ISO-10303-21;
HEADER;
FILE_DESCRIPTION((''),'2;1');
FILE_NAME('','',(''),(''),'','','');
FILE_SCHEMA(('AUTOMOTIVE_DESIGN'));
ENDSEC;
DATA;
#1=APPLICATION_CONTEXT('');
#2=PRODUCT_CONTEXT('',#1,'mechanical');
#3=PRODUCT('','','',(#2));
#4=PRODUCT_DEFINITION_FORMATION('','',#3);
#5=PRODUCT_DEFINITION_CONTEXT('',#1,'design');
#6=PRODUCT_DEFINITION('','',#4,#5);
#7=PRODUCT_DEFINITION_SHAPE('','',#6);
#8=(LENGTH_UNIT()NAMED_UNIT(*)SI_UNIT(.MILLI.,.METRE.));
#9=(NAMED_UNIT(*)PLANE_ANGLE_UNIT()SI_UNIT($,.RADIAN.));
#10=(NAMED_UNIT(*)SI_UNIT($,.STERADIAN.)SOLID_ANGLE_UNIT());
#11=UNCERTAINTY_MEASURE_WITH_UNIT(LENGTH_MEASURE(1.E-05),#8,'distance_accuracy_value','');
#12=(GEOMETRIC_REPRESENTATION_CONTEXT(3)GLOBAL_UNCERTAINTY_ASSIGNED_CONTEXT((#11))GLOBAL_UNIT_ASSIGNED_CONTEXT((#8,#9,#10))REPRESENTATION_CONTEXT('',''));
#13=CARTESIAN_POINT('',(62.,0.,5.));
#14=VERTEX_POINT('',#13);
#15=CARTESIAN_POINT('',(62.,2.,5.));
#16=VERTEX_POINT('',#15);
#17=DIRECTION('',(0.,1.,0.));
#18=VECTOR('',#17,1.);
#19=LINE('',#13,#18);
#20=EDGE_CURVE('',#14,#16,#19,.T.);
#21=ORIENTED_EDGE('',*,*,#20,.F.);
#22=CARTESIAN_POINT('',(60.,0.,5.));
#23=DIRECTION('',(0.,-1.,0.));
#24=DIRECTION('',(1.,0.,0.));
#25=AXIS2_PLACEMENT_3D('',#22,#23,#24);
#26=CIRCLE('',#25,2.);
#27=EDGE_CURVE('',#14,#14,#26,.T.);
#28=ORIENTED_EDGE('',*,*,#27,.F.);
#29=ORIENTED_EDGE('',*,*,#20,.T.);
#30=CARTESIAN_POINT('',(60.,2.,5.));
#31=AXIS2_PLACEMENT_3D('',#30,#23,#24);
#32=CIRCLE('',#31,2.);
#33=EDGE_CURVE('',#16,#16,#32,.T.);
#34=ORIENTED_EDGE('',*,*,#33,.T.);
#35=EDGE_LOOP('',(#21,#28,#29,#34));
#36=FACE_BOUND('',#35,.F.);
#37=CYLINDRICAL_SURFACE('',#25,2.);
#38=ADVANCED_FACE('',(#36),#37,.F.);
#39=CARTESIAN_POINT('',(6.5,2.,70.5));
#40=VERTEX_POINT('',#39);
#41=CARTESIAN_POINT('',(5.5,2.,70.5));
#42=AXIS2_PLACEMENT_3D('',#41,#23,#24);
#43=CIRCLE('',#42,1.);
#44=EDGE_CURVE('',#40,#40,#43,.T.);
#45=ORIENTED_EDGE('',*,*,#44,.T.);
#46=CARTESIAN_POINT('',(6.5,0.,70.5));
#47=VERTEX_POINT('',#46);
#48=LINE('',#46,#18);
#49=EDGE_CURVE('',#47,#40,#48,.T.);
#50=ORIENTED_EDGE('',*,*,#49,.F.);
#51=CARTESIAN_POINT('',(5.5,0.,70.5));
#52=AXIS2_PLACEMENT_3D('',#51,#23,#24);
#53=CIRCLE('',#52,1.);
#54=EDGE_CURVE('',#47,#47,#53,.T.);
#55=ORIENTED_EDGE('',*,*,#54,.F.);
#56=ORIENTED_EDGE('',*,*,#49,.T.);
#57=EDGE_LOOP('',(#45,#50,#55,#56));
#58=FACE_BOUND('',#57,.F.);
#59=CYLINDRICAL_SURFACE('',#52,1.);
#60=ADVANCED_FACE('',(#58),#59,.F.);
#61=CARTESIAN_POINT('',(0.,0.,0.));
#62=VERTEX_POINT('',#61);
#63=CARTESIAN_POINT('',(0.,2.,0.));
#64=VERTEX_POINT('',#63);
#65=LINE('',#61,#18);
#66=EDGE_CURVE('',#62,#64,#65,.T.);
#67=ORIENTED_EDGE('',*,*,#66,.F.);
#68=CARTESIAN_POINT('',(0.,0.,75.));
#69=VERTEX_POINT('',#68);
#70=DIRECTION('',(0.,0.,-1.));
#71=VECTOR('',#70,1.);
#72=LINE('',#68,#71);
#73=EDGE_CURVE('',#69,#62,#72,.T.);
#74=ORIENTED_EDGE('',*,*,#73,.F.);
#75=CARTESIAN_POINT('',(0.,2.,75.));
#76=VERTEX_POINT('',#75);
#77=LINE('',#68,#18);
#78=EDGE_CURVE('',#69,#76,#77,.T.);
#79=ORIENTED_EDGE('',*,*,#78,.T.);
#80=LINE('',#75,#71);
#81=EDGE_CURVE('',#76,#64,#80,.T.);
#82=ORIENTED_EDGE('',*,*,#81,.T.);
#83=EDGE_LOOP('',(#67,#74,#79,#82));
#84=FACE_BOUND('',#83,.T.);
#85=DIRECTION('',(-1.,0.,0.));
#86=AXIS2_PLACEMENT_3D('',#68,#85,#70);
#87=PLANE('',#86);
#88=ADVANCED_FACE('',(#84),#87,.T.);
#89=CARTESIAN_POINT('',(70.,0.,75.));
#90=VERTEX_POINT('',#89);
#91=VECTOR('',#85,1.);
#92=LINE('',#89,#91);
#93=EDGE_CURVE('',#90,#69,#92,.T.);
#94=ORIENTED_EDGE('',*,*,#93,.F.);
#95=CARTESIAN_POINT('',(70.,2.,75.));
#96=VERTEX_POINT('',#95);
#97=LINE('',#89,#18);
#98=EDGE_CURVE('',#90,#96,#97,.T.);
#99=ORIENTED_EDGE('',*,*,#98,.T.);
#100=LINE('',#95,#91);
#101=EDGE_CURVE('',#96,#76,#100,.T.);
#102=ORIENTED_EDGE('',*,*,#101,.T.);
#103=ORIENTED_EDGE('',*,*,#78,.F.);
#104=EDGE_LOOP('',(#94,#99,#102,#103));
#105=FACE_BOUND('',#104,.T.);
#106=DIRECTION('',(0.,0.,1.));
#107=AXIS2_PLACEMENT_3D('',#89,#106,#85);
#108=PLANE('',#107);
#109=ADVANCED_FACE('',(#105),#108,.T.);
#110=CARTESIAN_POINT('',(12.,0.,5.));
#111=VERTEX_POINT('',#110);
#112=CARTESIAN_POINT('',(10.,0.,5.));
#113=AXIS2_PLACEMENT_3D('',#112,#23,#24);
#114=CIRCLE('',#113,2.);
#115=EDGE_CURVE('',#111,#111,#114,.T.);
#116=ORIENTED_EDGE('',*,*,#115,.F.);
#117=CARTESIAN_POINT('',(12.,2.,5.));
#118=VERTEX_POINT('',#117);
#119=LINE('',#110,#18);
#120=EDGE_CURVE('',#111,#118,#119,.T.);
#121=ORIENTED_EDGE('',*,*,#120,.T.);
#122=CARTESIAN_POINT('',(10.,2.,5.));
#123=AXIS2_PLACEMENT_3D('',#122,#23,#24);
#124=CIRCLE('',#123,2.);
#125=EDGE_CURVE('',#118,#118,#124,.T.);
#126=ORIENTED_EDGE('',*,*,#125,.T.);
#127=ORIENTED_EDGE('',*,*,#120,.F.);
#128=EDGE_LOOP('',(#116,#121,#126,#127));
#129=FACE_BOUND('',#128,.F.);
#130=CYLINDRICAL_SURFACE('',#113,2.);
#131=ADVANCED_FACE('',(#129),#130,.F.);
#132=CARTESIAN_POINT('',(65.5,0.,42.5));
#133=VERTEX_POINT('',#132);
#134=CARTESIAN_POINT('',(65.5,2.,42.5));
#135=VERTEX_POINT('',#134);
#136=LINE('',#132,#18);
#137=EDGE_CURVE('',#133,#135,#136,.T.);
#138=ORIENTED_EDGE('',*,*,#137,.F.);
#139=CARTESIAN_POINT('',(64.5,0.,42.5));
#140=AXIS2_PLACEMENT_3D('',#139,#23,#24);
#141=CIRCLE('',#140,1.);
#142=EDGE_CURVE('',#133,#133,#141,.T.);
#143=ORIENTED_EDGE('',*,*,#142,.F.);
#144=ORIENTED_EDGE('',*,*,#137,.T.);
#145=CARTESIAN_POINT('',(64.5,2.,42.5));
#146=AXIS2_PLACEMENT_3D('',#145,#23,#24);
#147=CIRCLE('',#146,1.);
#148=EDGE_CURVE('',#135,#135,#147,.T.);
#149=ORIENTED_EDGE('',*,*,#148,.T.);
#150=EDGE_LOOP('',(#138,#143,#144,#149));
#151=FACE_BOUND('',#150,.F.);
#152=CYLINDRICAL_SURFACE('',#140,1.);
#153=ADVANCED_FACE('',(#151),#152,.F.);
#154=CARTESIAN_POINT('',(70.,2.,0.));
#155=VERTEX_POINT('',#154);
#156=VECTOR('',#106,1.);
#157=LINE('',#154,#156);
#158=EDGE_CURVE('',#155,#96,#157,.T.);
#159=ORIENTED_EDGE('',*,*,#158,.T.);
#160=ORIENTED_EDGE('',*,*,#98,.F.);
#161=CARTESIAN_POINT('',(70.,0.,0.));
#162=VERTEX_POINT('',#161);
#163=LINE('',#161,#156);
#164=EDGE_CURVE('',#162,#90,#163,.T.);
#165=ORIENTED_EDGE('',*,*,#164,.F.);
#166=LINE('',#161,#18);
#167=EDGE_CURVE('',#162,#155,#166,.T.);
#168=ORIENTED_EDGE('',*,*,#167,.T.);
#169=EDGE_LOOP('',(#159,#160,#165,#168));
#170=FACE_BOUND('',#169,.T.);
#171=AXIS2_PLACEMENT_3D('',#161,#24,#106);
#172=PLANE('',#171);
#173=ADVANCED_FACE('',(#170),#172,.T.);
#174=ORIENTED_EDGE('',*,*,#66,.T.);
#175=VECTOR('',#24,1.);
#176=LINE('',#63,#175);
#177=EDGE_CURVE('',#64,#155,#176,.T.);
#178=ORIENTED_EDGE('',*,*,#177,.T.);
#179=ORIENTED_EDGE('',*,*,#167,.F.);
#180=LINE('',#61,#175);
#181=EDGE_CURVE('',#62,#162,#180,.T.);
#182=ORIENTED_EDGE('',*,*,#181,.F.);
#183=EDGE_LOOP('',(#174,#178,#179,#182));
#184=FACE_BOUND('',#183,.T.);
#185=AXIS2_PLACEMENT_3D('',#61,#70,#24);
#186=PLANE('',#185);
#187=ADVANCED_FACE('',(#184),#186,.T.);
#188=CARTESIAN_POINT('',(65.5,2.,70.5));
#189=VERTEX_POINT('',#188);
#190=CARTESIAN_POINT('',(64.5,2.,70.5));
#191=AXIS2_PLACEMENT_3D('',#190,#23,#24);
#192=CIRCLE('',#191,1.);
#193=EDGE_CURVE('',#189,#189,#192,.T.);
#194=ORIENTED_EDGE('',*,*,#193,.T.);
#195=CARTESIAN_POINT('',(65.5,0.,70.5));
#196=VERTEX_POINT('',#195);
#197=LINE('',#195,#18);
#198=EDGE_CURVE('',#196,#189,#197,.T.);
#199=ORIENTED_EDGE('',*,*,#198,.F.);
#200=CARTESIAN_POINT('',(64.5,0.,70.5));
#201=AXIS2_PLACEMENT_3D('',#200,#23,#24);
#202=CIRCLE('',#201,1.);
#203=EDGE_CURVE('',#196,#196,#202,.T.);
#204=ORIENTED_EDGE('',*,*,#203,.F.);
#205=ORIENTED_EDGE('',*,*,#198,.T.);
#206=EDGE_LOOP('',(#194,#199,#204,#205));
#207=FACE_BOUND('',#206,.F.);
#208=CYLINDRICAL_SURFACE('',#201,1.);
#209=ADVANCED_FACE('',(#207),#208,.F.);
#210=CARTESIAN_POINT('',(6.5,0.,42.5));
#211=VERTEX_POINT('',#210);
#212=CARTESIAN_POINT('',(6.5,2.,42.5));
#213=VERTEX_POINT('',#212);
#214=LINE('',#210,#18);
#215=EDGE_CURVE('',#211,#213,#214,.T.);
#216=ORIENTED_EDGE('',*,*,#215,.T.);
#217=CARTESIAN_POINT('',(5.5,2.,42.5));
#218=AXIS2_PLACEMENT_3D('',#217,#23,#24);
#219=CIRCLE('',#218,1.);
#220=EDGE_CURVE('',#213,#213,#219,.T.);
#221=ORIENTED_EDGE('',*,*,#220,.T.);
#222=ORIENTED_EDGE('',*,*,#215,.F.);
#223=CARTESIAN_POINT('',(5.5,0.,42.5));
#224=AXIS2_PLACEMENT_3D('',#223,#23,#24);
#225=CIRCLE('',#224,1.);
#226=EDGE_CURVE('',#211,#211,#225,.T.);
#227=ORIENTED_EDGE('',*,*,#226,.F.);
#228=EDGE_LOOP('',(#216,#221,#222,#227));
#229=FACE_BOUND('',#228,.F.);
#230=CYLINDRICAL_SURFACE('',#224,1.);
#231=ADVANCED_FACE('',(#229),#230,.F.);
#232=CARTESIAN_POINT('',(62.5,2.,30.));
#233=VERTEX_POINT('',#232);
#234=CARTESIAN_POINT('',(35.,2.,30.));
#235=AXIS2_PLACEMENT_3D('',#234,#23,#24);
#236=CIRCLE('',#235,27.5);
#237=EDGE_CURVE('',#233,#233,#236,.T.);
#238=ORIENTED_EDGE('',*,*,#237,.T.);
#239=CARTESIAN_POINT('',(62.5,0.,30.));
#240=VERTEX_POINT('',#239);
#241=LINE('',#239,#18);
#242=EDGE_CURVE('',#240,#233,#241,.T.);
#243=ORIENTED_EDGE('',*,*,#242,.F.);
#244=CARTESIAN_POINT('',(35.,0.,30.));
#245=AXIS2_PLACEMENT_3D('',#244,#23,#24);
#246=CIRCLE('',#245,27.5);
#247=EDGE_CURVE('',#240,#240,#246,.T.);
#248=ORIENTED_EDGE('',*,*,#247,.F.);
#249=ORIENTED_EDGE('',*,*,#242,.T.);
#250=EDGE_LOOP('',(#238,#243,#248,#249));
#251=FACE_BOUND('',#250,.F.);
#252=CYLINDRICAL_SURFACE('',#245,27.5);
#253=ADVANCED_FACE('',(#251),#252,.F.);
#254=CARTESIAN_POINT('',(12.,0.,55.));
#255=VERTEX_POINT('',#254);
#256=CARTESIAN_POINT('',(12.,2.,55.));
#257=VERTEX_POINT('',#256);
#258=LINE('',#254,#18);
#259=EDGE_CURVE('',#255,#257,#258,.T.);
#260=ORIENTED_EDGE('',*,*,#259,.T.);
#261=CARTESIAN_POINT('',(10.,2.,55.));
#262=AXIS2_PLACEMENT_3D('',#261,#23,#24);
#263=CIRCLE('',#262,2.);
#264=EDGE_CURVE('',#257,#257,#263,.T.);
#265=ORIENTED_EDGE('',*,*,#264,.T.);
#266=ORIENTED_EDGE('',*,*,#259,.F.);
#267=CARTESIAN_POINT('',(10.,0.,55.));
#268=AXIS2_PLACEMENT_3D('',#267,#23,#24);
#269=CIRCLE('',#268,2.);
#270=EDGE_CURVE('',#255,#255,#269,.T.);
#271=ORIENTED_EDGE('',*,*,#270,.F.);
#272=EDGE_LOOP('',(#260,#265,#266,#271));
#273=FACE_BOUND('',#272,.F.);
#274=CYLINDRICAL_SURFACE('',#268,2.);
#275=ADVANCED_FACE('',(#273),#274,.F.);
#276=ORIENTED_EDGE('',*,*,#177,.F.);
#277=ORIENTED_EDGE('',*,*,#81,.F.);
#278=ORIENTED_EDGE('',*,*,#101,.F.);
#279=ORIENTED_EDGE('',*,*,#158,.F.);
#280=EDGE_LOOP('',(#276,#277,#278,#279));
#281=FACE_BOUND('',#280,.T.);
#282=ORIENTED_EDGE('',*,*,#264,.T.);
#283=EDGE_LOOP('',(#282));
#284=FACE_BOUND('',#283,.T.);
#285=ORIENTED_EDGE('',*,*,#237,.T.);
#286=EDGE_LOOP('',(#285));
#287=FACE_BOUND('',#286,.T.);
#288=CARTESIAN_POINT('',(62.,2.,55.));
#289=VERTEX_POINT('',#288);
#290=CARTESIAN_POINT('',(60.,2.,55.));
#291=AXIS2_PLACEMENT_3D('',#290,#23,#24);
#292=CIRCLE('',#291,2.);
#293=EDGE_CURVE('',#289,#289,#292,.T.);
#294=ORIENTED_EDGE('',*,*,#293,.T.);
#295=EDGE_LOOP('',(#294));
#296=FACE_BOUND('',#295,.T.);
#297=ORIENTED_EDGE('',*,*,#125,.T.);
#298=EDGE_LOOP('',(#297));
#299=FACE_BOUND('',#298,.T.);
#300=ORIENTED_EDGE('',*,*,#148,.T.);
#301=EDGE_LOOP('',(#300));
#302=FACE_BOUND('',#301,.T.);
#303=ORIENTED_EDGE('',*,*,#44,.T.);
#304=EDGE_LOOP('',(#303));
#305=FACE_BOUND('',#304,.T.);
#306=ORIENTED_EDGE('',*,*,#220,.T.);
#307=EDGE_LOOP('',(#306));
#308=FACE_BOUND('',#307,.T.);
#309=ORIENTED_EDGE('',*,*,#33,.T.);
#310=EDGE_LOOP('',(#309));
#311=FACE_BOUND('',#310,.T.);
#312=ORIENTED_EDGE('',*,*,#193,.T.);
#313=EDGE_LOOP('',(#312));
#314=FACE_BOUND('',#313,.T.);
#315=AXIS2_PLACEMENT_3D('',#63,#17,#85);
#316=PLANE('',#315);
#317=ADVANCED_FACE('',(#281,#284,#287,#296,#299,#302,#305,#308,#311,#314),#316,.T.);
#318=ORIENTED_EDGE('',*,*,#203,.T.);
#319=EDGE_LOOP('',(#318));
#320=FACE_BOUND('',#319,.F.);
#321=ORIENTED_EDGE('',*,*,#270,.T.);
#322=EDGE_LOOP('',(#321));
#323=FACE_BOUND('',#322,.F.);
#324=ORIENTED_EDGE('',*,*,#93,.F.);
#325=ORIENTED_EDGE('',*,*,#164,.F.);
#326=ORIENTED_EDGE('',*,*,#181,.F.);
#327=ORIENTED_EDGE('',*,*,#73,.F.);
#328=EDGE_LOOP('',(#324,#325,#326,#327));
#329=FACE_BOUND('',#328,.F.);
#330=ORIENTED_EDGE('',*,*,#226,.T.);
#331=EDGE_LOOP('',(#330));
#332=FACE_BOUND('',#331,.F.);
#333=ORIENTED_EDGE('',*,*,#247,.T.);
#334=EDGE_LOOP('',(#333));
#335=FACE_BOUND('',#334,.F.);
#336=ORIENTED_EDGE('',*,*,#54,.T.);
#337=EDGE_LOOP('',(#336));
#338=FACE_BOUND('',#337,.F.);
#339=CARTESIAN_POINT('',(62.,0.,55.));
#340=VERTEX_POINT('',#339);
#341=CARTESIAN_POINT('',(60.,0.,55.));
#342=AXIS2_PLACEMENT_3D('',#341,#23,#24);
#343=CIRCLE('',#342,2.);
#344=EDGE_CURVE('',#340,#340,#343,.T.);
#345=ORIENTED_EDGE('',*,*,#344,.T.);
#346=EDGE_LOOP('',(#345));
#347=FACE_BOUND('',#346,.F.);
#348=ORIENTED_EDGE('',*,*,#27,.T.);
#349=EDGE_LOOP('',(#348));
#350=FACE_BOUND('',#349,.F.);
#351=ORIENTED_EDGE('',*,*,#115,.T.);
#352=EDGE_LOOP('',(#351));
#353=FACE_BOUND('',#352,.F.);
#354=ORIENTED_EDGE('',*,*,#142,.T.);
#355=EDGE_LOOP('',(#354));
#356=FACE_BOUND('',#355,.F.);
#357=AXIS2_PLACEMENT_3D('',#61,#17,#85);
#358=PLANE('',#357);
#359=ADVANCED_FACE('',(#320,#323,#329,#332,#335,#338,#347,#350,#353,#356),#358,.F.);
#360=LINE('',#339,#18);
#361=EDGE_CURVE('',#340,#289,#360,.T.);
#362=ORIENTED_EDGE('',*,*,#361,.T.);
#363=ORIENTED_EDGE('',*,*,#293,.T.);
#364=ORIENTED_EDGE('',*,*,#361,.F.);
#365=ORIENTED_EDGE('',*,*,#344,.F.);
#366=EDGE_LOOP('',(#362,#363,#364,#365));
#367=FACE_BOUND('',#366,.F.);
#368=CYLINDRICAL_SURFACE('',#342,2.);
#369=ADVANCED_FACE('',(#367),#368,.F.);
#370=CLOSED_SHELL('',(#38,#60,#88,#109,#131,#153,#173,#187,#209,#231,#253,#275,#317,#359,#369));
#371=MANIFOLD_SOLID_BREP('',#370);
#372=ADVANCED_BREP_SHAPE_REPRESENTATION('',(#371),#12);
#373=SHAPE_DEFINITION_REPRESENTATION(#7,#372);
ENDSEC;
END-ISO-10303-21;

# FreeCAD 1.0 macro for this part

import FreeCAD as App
import Part
import Sketcher
Q = App.Units.Quantity


def add_polygon(sketch, points):
    """Adds a closed chain of lines whose ends are joined by coincident constraints."""
    first, n = sketch.GeometryCount, len(points)
    for a, b in zip(points, points[1:] + points[:1]):
        sketch.addGeometry(Part.LineSegment(App.Vector(*a, 0), App.Vector(*b, 0)), False)
    for i in range(n):
        sketch.addConstraint(Sketcher.Constraint("Coincident", first + i, 2, first + (i + 1) % n, 1))

doc = App.newDocument("Part")
body = doc.addObject("PartDesign::Body", "Body")

sketch1 = body.newObject("Sketcher::SketchObject", "Sketch")
sketch1.AttachmentSupport = (doc.getObject("XZ_Plane"), [""])
sketch1.MapMode = "FlatFace"
add_polygon(sketch1, [(70, 0), (0, 0), (0, 75), (70, 75)])
sketch1.addConstraint([
    Sketcher.Constraint("Horizontal", 0),
    Sketcher.Constraint("Vertical", 1),
    Sketcher.Constraint("Horizontal", 2),
    Sketcher.Constraint("Vertical", 3),
    Sketcher.Constraint("Coincident", 0, 2, -1, 1),
    Sketcher.Constraint("DistanceX", 0, 2, 0, 1, Q("70 mm")),
    Sketcher.Constraint("DistanceY", 1, 1, 1, 2, Q("75 mm")),
])
pad1 = body.newObject("PartDesign::Pad", "Pad")
pad1.Profile = sketch1
pad1.Length = 2
pad1.Reversed = True

sketch2 = body.newObject("Sketcher::SketchObject", "Sketch001")
sketch2.AttachmentSupport = (doc.getObject("XZ_Plane"), [""])
sketch2.MapMode = "FlatFace"
sketch2.addGeometry([
    Part.Circle(App.Vector(60, 55, 0), App.Vector(0, 0, 1), 2),
    Part.Circle(App.Vector(10, 55, 0), App.Vector(0, 0, 1), 2),
    Part.Circle(App.Vector(60, 5, 0), App.Vector(0, 0, 1), 2),
    Part.Circle(App.Vector(10, 5, 0), App.Vector(0, 0, 1), 2),
    Part.Circle(App.Vector(35, 30, 0), App.Vector(0, 0, 1), 27.5),
], False)
sketch2.addConstraint([
    Sketcher.Constraint("Equal", 0, 1),
    Sketcher.Constraint("Equal", 1, 2),
    Sketcher.Constraint("Equal", 2, 3),
    Sketcher.Constraint("Horizontal", 0, 3, 1, 3),
    Sketcher.Constraint("Horizontal", 2, 3, 3, 3),
    Sketcher.Constraint("Vertical", 0, 3, 2, 3),
    Sketcher.Constraint("Vertical", 1, 3, 3, 3),
    Sketcher.Constraint("Diameter", 0, Q("4 mm")),
    Sketcher.Constraint("Diameter", 4, Q("55 mm")),
    Sketcher.Constraint("DistanceX", -1, 1, 0, 3, Q("60 mm")),
    Sketcher.Constraint("DistanceY", -1, 1, 0, 3, Q("55 mm")),
    Sketcher.Constraint("DistanceY", -1, 1, 2, 3, Q("5 mm")),
    Sketcher.Constraint("DistanceY", -1, 1, 4, 3, Q("30 mm")),
    Sketcher.Constraint("DistanceX", 1, 3, 0, 3, Q("50 mm")),
    Sketcher.Constraint("DistanceX", -1, 1, 4, 3, Q("35 mm")),
])
pocket1 = body.newObject("PartDesign::Pocket", "Pocket")
pocket1.Profile = sketch2
pocket1.Type = "ThroughAll"

sketch3 = body.newObject("Sketcher::SketchObject", "Sketch002")
sketch3.AttachmentSupport = (doc.getObject("XZ_Plane"), [""])
sketch3.MapMode = "FlatFace"
sketch3.addGeometry([
    Part.Circle(App.Vector(64.5, 70.5, 0), App.Vector(0, 0, 1), 1),
    Part.Circle(App.Vector(5.5, 70.5, 0), App.Vector(0, 0, 1), 1),
    Part.Circle(App.Vector(64.5, 42.5, 0), App.Vector(0, 0, 1), 1),
    Part.Circle(App.Vector(5.5, 42.5, 0), App.Vector(0, 0, 1), 1),
], False)
sketch3.addConstraint([
    Sketcher.Constraint("Equal", 0, 1),
    Sketcher.Constraint("Equal", 1, 2),
    Sketcher.Constraint("Equal", 2, 3),
    Sketcher.Constraint("Horizontal", 0, 3, 1, 3),
    Sketcher.Constraint("Horizontal", 2, 3, 3, 3),
    Sketcher.Constraint("Vertical", 0, 3, 2, 3),
    Sketcher.Constraint("Vertical", 1, 3, 3, 3),
    Sketcher.Constraint("Diameter", 0, Q("2 mm")),
    Sketcher.Constraint("DistanceX", 1, 3, 0, 3, Q("59 mm")),
    Sketcher.Constraint("DistanceY", 2, 3, 0, 3, Q("28 mm")),
    Sketcher.Constraint("DistanceX", -1, 1, 0, 3, Q("64.5 mm")),
    Sketcher.Constraint("DistanceY", -1, 1, 0, 3, Q("70.5 mm")),
])
pocket2 = body.newObject("PartDesign::Pocket", "Pocket001")
pocket2.Profile = sketch3
pocket2.Type = "ThroughAll"

doc.recompute()
